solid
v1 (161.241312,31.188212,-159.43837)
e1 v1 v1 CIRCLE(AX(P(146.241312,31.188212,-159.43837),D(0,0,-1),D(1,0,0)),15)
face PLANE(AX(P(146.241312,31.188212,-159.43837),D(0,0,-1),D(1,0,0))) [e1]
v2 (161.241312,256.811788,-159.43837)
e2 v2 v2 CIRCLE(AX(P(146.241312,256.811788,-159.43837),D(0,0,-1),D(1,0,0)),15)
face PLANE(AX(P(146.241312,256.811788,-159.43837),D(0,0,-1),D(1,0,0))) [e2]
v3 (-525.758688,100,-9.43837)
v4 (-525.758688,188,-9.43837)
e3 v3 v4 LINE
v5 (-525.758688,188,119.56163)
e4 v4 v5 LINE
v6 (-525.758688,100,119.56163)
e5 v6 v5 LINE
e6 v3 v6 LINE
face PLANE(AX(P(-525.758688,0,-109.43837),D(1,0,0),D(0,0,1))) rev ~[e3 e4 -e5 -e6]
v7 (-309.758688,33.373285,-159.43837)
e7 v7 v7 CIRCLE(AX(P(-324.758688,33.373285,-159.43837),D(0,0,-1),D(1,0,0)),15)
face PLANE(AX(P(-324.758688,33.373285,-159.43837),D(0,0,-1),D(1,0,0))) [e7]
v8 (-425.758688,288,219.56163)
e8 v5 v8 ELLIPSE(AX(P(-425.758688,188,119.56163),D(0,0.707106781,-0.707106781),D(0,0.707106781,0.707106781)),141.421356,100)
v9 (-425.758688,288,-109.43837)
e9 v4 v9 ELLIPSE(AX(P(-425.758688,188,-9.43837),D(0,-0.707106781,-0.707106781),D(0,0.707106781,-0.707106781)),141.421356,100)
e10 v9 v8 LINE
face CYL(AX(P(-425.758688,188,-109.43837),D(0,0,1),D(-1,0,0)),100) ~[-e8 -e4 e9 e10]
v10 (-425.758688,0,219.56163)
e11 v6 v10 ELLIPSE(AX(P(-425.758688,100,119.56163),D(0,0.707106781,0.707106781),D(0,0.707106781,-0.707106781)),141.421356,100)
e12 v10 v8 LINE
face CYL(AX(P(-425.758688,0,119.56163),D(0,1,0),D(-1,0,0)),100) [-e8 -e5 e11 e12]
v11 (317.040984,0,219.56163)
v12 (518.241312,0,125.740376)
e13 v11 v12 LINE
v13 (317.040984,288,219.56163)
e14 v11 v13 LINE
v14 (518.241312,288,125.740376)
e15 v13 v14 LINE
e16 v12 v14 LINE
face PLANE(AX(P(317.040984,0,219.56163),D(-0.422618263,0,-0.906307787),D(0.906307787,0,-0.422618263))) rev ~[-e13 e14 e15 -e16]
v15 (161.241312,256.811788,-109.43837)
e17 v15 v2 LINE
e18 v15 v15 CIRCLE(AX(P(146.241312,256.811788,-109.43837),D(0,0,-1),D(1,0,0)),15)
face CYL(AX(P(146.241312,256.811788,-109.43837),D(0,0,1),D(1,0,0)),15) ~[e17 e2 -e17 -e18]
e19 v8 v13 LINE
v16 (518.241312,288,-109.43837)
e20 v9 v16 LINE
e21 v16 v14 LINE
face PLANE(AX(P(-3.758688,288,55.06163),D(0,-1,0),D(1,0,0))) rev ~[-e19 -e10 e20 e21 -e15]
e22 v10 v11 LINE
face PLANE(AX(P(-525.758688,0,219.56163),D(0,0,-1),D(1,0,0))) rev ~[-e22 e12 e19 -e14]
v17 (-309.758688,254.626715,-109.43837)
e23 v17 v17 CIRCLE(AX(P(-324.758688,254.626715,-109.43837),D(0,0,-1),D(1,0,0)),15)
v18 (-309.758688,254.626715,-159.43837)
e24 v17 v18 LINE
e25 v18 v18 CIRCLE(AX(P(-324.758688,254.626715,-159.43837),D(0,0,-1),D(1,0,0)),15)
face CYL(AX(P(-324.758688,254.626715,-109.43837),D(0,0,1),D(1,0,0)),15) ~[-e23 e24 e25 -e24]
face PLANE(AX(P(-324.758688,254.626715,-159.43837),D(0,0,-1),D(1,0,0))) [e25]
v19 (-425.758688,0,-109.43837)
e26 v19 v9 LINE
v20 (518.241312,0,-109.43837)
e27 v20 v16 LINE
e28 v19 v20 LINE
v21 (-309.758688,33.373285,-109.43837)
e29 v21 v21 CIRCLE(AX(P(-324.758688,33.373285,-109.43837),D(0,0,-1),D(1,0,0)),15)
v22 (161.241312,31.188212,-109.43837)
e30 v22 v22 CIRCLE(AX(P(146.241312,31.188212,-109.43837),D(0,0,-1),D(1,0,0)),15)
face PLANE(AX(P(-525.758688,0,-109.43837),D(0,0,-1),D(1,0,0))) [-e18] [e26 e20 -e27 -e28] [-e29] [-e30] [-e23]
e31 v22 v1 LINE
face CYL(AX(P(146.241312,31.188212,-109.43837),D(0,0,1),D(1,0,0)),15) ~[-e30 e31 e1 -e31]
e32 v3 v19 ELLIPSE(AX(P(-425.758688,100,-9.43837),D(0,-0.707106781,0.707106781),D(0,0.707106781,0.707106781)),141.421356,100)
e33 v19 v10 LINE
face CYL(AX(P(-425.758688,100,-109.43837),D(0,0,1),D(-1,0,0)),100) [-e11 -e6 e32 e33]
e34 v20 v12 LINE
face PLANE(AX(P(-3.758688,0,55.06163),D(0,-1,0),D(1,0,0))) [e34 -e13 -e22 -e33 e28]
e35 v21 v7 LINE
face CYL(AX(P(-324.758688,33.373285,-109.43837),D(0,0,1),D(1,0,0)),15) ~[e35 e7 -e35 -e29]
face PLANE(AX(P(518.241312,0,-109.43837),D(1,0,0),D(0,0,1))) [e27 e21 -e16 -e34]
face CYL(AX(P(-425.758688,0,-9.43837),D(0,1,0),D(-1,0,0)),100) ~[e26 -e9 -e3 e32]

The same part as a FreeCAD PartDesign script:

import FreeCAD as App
import Part
import Sketcher

V = App.Vector
Q = App.Units.Quantity


def edges_at(feature, points):
    """Names of the edges that pass closest to the given points."""
    edges = feature.Shape.Edges
    near = lambda p: min(range(len(edges)), key=lambda i: edges[i].distToShape(Part.Vertex(*p))[0])
    return sorted({f"Edge{near(p) + 1}" for p in points})

doc = App.newDocument("Part")
params = doc.addObject("Spreadsheet::Sheet", "Params")
for row, (alias, value) in enumerate([
    ("sketch1_width", "1044 mm"),
    ("sketch1_height", "329 mm"),
    ("pad1_length", "288 mm"),
    ("fillet_radius", "100 mm"),
    ("sketch2_length", "221.999999 mm"),
    ("sketch3_diameter", "30 mm"),
    ("pad2_length", "50 mm"),
], start=1):
    params.set(f"A{row}", alias)
    params.set(f"B{row}", "=" + value)
    params.setAlias(f"B{row}", alias)

body = doc.addObject("PartDesign::Body", "Body")

# Sketch on XZ plane
sketch1 = doc.addObject("Sketcher::SketchObject", "Sketch")
body.addObject(sketch1)
sketch1.AttachmentSupport = (doc.XZ_Plane, [""])
sketch1.MapMode = "FlatFace"
sketch1.addGeometry([
    Part.LineSegment(V(-525.758688, 219.56163, 0), V(-525.758688, -109.43837, 0)),
    Part.LineSegment(V(-525.758688, -109.43837, 0), V(518.241312, -109.43837, 0)),
    Part.LineSegment(V(518.241312, -109.43837, 0), V(518.241312, 219.56163, 0)),
    Part.LineSegment(V(518.241312, 219.56163, 0), V(-525.758688, 219.56163, 0)),
], False)
sketch1.addConstraint([
    Sketcher.Constraint("Coincident", 0, 2, 1, 1),
    Sketcher.Constraint("Coincident", 1, 2, 2, 1),
    Sketcher.Constraint("Coincident", 2, 2, 3, 1),
    Sketcher.Constraint("Coincident", 3, 2, 0, 1),
    Sketcher.Constraint("Vertical", 0),
    Sketcher.Constraint("Horizontal", 1),
    Sketcher.Constraint("Vertical", 2),
    Sketcher.Constraint("Horizontal", 3),
    Sketcher.Constraint("DistanceX", 1, 1, 1, 2, 1044.0),
    Sketcher.Constraint("DistanceY", 0, 2, 0, 1, 329.0),
    Sketcher.Constraint("DistanceX", 0, 2, -1, 1, 525.758688),
    Sketcher.Constraint("DistanceY", 0, 2, -1, 1, 109.43837),
])
sketch1.setExpression("Constraints[8]", "Params.sketch1_width")
sketch1.setExpression("Constraints[9]", "Params.sketch1_height")
pad1 = doc.addObject("PartDesign::Pad", "Pad")
body.addObject(pad1)
pad1.Profile = sketch1
pad1.setExpression("Length", "Params.pad1_length")
pad1.Reversed = True
doc.recompute()

fillet = doc.addObject("PartDesign::Fillet", "Fillet")
body.addObject(fillet)
fillet.Base = (pad1, edges_at(pad1, [
    (-525.759, 144, 219.562),
    (-525.759, 144, -109.438),
    (-525.759, 0, 55.062),
    (-525.759, 288, 55.062),
]))
fillet.setExpression("Radius", "Params.fillet_radius")

# Sketch on XZ plane
sketch2 = doc.addObject("Sketcher::SketchObject", "Sketch001")
body.addObject(sketch2)
sketch2.AttachmentSupport = (doc.XZ_Plane, [""])
sketch2.MapMode = "FlatFace"
sketch2.addGeometry([
    Part.LineSegment(V(518.241312, 219.56163, 0), V(317.040984, 219.56163, 0)),
    Part.LineSegment(V(317.040984, 219.56163, 0), V(518.241312, 125.740376, 0)),
    Part.LineSegment(V(518.241312, 125.740376, 0), V(518.241312, 219.56163, 0)),
], False)
sketch2.addConstraint([
    Sketcher.Constraint("Coincident", 0, 2, 1, 1),
    Sketcher.Constraint("Coincident", 1, 2, 2, 1),
    Sketcher.Constraint("Coincident", 2, 2, 0, 1),
    Sketcher.Constraint("Horizontal", 0),
    Sketcher.Constraint("Vertical", 2),
    Sketcher.Constraint("Angle", 1, Q("-25 deg")),
    Sketcher.Constraint("Distance", 1, 221.999999),
    Sketcher.Constraint("DistanceY", -1, 1, 0, 2, 219.56163),
    Sketcher.Constraint("DistanceX", -1, 1, 1, 2, 518.241312),
])
sketch2.setExpression("Constraints[6]", "Params.sketch2_length")
pocket1 = doc.addObject("PartDesign::Pocket", "Pocket")
body.addObject(pocket1)
pocket1.Profile = sketch2
pocket1.Type = "ThroughAll"

# Sketch on XY plane
sketch3 = doc.addObject("Sketcher::SketchObject", "Sketch002")
body.addObject(sketch3)
sketch3.AttachmentSupport = (doc.XY_Plane, [""])
sketch3.MapMode = "FlatFace"
sketch3.AttachmentOffset = App.Placement(V(0, 0, -109.43837), App.Rotation())
sketch3.addGeometry([
    Part.Circle(V(-324.758688, 33.373285, 0), V(0, 0, 1), 15),
    Part.Circle(V(146.241312, 31.188212, 0), V(0, 0, 1), 15),
    Part.Circle(V(-324.758688, 254.626715, 0), V(0, 0, 1), 15),
    Part.Circle(V(146.241312, 256.811788, 0), V(0, 0, 1), 15),
], False)
sketch3.addConstraint([
    Sketcher.Constraint("Equal", 0, 1),
    Sketcher.Constraint("Equal", 1, 2),
    Sketcher.Constraint("Equal", 2, 3),
    Sketcher.Constraint("Vertical", 0, 3, 2, 3),
    Sketcher.Constraint("Vertical", 1, 3, 3, 3),
    Sketcher.Constraint("Diameter", 0, 30.0),
    Sketcher.Constraint("DistanceX", 0, 3, 1, 3, 471.0),
    Sketcher.Constraint("DistanceX", 0, 3, -1, 1, 324.758688),
    Sketcher.Constraint("DistanceY", -1, 1, 1, 3, 31.188212),
    Sketcher.Constraint("DistanceY", -1, 1, 3, 3, 256.811788),
    Sketcher.Constraint("DistanceY", 0, 3, 2, 3, 221.25343),
    Sketcher.Constraint("DistanceY", -1, 1, 0, 3, 33.373285),
])
sketch3.setExpression("Constraints[5]", "Params.sketch3_diameter")
pad2 = doc.addObject("PartDesign::Pad", "Pad001")
body.addObject(pad2)
pad2.Profile = sketch3
pad2.setExpression("Length", "Params.pad2_length")
pad2.Reversed = True

doc.recompute()
